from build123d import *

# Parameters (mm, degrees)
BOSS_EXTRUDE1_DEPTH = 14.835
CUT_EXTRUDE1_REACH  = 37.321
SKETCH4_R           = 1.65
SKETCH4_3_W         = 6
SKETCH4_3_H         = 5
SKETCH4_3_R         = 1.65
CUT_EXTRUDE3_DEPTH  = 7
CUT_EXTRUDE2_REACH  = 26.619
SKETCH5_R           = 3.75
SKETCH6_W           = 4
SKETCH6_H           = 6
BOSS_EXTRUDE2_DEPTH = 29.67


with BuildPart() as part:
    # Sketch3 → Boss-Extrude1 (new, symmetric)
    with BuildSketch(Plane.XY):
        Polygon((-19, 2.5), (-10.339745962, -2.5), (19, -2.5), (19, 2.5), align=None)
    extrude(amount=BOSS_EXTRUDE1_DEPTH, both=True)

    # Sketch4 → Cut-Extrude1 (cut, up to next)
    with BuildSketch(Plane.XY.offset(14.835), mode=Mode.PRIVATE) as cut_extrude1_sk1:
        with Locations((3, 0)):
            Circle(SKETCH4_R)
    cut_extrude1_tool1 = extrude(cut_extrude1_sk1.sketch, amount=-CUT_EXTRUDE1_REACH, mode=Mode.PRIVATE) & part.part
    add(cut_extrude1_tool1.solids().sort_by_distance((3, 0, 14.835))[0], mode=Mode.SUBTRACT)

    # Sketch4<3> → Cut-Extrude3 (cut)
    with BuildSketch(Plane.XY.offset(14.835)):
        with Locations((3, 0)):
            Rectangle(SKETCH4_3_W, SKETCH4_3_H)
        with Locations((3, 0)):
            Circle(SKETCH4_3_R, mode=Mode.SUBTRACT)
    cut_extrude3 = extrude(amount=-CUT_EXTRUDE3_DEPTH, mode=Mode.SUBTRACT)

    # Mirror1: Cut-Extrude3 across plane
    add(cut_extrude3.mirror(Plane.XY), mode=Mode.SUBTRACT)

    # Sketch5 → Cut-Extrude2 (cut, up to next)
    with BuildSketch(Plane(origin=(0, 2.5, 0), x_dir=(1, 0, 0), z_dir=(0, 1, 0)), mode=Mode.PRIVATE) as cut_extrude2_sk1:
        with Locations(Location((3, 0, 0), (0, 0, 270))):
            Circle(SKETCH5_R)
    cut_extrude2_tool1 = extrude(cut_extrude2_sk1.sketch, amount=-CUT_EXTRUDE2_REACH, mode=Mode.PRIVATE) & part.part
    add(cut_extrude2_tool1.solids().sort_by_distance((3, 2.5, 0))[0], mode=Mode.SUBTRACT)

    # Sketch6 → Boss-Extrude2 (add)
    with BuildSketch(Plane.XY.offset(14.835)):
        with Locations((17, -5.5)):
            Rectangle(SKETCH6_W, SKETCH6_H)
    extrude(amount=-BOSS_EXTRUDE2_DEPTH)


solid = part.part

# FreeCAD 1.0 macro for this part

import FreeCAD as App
import Part
import Sketcher
from FreeCAD import Vector
Q = App.Units.Quantity

doc = App.newDocument("Part")
params = doc.addObject("Spreadsheet::Sheet", "Params")
for row, (alias, value) in enumerate([
    ("sketch1_width", "38 mm"),
    ("sketch1_height", "5 mm"),
    ("pad1_length", "29.67 mm"),
    ("sketch2_diameter", "3.3 mm"),
    ("sketch3_diameter", "3.3 mm"),
    ("sketch3_width", "6 mm"),
    ("sketch3_height", "5 mm"),
    ("pocket2_length", "7 mm"),
    ("sketch4_diameter", "7.5 mm"),
    ("pocket3_length", "5 mm"),
    ("sketch5_width", "4 mm"),
    ("sketch5_height", "6 mm"),
    ("pad2_length", "29.67 mm"),
], start=1):
    params.set(f"A{row}", alias)
    params.set(f"B{row}", "=" + value)
    params.setAlias(f"B{row}", alias)

body = doc.addObject("PartDesign::Body", "Body")

# Sketch on XY plane
sketch1 = body.newObject("Sketcher::SketchObject", "Sketch")
sketch1.AttachmentSupport = (doc.getObject("XY_Plane"), [""])
sketch1.MapMode = "FlatFace"
sketch1.addGeometry(Part.LineSegment(Vector(-19, 2, 0), Vector(-10, -2, 0)), False)
sketch1.addGeometry(Part.LineSegment(Vector(-10, -2, 0), Vector(19, -2, 0)), False)
sketch1.addGeometry(Part.LineSegment(Vector(19, -2, 0), Vector(19, 2, 0)), False)
sketch1.addGeometry(Part.LineSegment(Vector(19, 2, 0), Vector(-19, 2, 0)), False)
sketch1.addConstraint(Sketcher.Constraint("Coincident", 0, 2, 1, 1))
sketch1.addConstraint(Sketcher.Constraint("Coincident", 1, 2, 2, 1))
sketch1.addConstraint(Sketcher.Constraint("Coincident", 2, 2, 3, 1))
sketch1.addConstraint(Sketcher.Constraint("Coincident", 3, 2, 0, 1))
sketch1.addConstraint(Sketcher.Constraint("Horizontal", 1))
sketch1.addConstraint(Sketcher.Constraint("Vertical", 2))
sketch1.addConstraint(Sketcher.Constraint("Horizontal", 3))
sketch1.addConstraint(Sketcher.Constraint("Symmetric", 1, 2, 3, 2, -1, 1))
sketch1.addConstraint(Sketcher.Constraint("DistanceX", 3, 2, 3, 1, Q("38 mm")))
sketch1.addConstraint(Sketcher.Constraint("DistanceY", 2, 1, 2, 2, Q("5 mm")))
sketch1.addConstraint(Sketcher.Constraint("Angle", 0, Q("-30 deg")))
sketch1.setExpression("Constraints[8]", "Params.sketch1_width")
sketch1.setExpression("Constraints[9]", "Params.sketch1_height")
pad1 = body.newObject("PartDesign::Pad", "Pad")
pad1.Profile = sketch1
pad1.setExpression("Length", "Params.pad1_length")
pad1.Midplane = True

# Sketch on XY plane
sketch2 = body.newObject("Sketcher::SketchObject", "Sketch001")
sketch2.AttachmentSupport = (doc.getObject("XY_Plane"), [""])
sketch2.MapMode = "FlatFace"
sketch2.AttachmentOffset = App.Placement(Vector(0, 0, 14.835), App.Rotation())
sketch2.addGeometry(Part.Circle(Vector(3, 0, 0), Vector(0, 0, 1), 1.6), False)
sketch2.addConstraint(Sketcher.Constraint("PointOnObject", 0, 3, -1))
sketch2.addConstraint(Sketcher.Constraint("Diameter", 0, Q("3.3 mm")))
sketch2.addConstraint(Sketcher.Constraint("DistanceX", -1, 1, 0, 3, Q("3 mm")))
sketch2.setExpression("Constraints[1]", "Params.sketch2_diameter")
pocket1 = body.newObject("PartDesign::Pocket", "Pocket")
pocket1.Profile = sketch2
pocket1.Type = "UpToFirst"

# Sketch on XY plane
sketch3 = body.newObject("Sketcher::SketchObject", "Sketch002")
sketch3.AttachmentSupport = (doc.getObject("XY_Plane"), [""])
sketch3.MapMode = "FlatFace"
sketch3.AttachmentOffset = App.Placement(Vector(0, 0, 14.835), App.Rotation())
sketch3.addGeometry(Part.LineSegment(Vector(0, 2.5, 0), Vector(0, -2.5, 0)), False)
sketch3.addGeometry(Part.LineSegment(Vector(0, -2.5, 0), Vector(6, -2.5, 0)), False)
sketch3.addGeometry(Part.LineSegment(Vector(6, -2.5, 0), Vector(6, 2.5, 0)), False)
sketch3.addGeometry(Part.LineSegment(Vector(6, 2.5, 0), Vector(0, 2.5, 0)), False)
sketch3.addGeometry(Part.Circle(Vector(3, 0, 0), Vector(0, 0, 1), 1.6), False)
sketch3.addConstraint(Sketcher.Constraint("Coincident", 0, 2, 1, 1))
sketch3.addConstraint(Sketcher.Constraint("Coincident", 1, 2, 2, 1))
sketch3.addConstraint(Sketcher.Constraint("Coincident", 2, 2, 3, 1))
sketch3.addConstraint(Sketcher.Constraint("Coincident", 3, 2, 0, 1))
sketch3.addConstraint(Sketcher.Constraint("Vertical", 0))
sketch3.addConstraint(Sketcher.Constraint("Horizontal", 1))
sketch3.addConstraint(Sketcher.Constraint("Vertical", 2))
sketch3.addConstraint(Sketcher.Constraint("Horizontal", 3))
sketch3.addConstraint(Sketcher.Constraint("Symmetric", 0, 2, 3, 2, -1, 1))
sketch3.addConstraint(Sketcher.Constraint("PointOnObject", 4, 3, -1))
sketch3.addConstraint(Sketcher.Constraint("Diameter", 4, Q("3.3 mm")))
sketch3.addConstraint(Sketcher.Constraint("DistanceX", 1, 1, 1, 2, Q("6 mm")))
sketch3.addConstraint(Sketcher.Constraint("DistanceY", 0, 2, 0, 1, Q("5 mm")))
sketch3.addConstraint(Sketcher.Constraint("DistanceX", -1, 1, 4, 3, Q("3 mm")))
sketch3.setExpression("Constraints[10]", "Params.sketch3_diameter")
sketch3.setExpression("Constraints[11]", "Params.sketch3_width")
sketch3.setExpression("Constraints[12]", "Params.sketch3_height")
pocket2 = body.newObject("PartDesign::Pocket", "Pocket001")
pocket2.Profile = sketch3
pocket2.setExpression("Length", "Params.pocket2_length")
doc.recompute()

mirrored = body.newObject("PartDesign::Mirrored", "Mirrored")
mirrored.Originals = [pocket2]
mirrored.MirrorPlane = (doc.getObject("XY_Plane"), [""])
body.Tip = mirrored

# Sketch on XZ plane
sketch4 = body.newObject("Sketcher::SketchObject", "Sketch003")
sketch4.AttachmentSupport = (doc.getObject("XZ_Plane"), [""])
sketch4.MapMode = "FlatFace"
sketch4.AttachmentOffset = App.Placement(Vector(0, 0, -2.5), App.Rotation())
sketch4.addGeometry(Part.Circle(Vector(3, 0, 0), Vector(0, 0, 1), 3.8), False)
sketch4.addConstraint(Sketcher.Constraint("PointOnObject", 0, 3, -1))
sketch4.addConstraint(Sketcher.Constraint("Diameter", 0, Q("7.5 mm")))
sketch4.addConstraint(Sketcher.Constraint("DistanceX", -1, 1, 0, 3, Q("3 mm")))
sketch4.setExpression("Constraints[1]", "Params.sketch4_diameter")
pocket3 = body.newObject("PartDesign::Pocket", "Pocket002")
pocket3.Profile = sketch4
pocket3.setExpression("Length", "Params.pocket3_length")
pocket3.Reversed = True

# Sketch on XY plane
sketch5 = body.newObject("Sketcher::SketchObject", "Sketch004")
sketch5.AttachmentSupport = (doc.getObject("XY_Plane"), [""])
sketch5.MapMode = "FlatFace"
sketch5.AttachmentOffset = App.Placement(Vector(0, 0, 14.835), App.Rotation())
sketch5.addGeometry(Part.LineSegment(Vector(15, -2.5, 0), Vector(15, -8.5, 0)), False)
sketch5.addGeometry(Part.LineSegment(Vector(15, -8.5, 0), Vector(19, -8.5, 0)), False)
sketch5.addGeometry(Part.LineSegment(Vector(19, -8.5, 0), Vector(19, -2.5, 0)), False)
sketch5.addGeometry(Part.LineSegment(Vector(19, -2.5, 0), Vector(15, -2.5, 0)), False)
sketch5.addConstraint(Sketcher.Constraint("Coincident", 0, 2, 1, 1))
sketch5.addConstraint(Sketcher.Constraint("Coincident", 1, 2, 2, 1))
sketch5.addConstraint(Sketcher.Constraint("Coincident", 2, 2, 3, 1))
sketch5.addConstraint(Sketcher.Constraint("Coincident", 3, 2, 0, 1))
sketch5.addConstraint(Sketcher.Constraint("Vertical", 0))
sketch5.addConstraint(Sketcher.Constraint("Horizontal", 1))
sketch5.addConstraint(Sketcher.Constraint("Vertical", 2))
sketch5.addConstraint(Sketcher.Constraint("Horizontal", 3))
sketch5.addConstraint(Sketcher.Constraint("DistanceX", 1, 1, 1, 2, Q("4 mm")))
sketch5.addConstraint(Sketcher.Constraint("DistanceY", 0, 2, 0, 1, Q("6 mm")))
sketch5.addConstraint(Sketcher.Constraint("DistanceX", -1, 1, 0, 2, Q("15 mm")))
sketch5.addConstraint(Sketcher.Constraint("DistanceY", 0, 2, -1, 1, Q("8.5 mm")))
sketch5.setExpression("Constraints[8]", "Params.sketch5_width")
sketch5.setExpression("Constraints[9]", "Params.sketch5_height")
pad2 = body.newObject("PartDesign::Pad", "Pad001")
pad2.Profile = sketch5
pad2.setExpression("Length", "Params.pad2_length")
pad2.Reversed = True

doc.recompute()
